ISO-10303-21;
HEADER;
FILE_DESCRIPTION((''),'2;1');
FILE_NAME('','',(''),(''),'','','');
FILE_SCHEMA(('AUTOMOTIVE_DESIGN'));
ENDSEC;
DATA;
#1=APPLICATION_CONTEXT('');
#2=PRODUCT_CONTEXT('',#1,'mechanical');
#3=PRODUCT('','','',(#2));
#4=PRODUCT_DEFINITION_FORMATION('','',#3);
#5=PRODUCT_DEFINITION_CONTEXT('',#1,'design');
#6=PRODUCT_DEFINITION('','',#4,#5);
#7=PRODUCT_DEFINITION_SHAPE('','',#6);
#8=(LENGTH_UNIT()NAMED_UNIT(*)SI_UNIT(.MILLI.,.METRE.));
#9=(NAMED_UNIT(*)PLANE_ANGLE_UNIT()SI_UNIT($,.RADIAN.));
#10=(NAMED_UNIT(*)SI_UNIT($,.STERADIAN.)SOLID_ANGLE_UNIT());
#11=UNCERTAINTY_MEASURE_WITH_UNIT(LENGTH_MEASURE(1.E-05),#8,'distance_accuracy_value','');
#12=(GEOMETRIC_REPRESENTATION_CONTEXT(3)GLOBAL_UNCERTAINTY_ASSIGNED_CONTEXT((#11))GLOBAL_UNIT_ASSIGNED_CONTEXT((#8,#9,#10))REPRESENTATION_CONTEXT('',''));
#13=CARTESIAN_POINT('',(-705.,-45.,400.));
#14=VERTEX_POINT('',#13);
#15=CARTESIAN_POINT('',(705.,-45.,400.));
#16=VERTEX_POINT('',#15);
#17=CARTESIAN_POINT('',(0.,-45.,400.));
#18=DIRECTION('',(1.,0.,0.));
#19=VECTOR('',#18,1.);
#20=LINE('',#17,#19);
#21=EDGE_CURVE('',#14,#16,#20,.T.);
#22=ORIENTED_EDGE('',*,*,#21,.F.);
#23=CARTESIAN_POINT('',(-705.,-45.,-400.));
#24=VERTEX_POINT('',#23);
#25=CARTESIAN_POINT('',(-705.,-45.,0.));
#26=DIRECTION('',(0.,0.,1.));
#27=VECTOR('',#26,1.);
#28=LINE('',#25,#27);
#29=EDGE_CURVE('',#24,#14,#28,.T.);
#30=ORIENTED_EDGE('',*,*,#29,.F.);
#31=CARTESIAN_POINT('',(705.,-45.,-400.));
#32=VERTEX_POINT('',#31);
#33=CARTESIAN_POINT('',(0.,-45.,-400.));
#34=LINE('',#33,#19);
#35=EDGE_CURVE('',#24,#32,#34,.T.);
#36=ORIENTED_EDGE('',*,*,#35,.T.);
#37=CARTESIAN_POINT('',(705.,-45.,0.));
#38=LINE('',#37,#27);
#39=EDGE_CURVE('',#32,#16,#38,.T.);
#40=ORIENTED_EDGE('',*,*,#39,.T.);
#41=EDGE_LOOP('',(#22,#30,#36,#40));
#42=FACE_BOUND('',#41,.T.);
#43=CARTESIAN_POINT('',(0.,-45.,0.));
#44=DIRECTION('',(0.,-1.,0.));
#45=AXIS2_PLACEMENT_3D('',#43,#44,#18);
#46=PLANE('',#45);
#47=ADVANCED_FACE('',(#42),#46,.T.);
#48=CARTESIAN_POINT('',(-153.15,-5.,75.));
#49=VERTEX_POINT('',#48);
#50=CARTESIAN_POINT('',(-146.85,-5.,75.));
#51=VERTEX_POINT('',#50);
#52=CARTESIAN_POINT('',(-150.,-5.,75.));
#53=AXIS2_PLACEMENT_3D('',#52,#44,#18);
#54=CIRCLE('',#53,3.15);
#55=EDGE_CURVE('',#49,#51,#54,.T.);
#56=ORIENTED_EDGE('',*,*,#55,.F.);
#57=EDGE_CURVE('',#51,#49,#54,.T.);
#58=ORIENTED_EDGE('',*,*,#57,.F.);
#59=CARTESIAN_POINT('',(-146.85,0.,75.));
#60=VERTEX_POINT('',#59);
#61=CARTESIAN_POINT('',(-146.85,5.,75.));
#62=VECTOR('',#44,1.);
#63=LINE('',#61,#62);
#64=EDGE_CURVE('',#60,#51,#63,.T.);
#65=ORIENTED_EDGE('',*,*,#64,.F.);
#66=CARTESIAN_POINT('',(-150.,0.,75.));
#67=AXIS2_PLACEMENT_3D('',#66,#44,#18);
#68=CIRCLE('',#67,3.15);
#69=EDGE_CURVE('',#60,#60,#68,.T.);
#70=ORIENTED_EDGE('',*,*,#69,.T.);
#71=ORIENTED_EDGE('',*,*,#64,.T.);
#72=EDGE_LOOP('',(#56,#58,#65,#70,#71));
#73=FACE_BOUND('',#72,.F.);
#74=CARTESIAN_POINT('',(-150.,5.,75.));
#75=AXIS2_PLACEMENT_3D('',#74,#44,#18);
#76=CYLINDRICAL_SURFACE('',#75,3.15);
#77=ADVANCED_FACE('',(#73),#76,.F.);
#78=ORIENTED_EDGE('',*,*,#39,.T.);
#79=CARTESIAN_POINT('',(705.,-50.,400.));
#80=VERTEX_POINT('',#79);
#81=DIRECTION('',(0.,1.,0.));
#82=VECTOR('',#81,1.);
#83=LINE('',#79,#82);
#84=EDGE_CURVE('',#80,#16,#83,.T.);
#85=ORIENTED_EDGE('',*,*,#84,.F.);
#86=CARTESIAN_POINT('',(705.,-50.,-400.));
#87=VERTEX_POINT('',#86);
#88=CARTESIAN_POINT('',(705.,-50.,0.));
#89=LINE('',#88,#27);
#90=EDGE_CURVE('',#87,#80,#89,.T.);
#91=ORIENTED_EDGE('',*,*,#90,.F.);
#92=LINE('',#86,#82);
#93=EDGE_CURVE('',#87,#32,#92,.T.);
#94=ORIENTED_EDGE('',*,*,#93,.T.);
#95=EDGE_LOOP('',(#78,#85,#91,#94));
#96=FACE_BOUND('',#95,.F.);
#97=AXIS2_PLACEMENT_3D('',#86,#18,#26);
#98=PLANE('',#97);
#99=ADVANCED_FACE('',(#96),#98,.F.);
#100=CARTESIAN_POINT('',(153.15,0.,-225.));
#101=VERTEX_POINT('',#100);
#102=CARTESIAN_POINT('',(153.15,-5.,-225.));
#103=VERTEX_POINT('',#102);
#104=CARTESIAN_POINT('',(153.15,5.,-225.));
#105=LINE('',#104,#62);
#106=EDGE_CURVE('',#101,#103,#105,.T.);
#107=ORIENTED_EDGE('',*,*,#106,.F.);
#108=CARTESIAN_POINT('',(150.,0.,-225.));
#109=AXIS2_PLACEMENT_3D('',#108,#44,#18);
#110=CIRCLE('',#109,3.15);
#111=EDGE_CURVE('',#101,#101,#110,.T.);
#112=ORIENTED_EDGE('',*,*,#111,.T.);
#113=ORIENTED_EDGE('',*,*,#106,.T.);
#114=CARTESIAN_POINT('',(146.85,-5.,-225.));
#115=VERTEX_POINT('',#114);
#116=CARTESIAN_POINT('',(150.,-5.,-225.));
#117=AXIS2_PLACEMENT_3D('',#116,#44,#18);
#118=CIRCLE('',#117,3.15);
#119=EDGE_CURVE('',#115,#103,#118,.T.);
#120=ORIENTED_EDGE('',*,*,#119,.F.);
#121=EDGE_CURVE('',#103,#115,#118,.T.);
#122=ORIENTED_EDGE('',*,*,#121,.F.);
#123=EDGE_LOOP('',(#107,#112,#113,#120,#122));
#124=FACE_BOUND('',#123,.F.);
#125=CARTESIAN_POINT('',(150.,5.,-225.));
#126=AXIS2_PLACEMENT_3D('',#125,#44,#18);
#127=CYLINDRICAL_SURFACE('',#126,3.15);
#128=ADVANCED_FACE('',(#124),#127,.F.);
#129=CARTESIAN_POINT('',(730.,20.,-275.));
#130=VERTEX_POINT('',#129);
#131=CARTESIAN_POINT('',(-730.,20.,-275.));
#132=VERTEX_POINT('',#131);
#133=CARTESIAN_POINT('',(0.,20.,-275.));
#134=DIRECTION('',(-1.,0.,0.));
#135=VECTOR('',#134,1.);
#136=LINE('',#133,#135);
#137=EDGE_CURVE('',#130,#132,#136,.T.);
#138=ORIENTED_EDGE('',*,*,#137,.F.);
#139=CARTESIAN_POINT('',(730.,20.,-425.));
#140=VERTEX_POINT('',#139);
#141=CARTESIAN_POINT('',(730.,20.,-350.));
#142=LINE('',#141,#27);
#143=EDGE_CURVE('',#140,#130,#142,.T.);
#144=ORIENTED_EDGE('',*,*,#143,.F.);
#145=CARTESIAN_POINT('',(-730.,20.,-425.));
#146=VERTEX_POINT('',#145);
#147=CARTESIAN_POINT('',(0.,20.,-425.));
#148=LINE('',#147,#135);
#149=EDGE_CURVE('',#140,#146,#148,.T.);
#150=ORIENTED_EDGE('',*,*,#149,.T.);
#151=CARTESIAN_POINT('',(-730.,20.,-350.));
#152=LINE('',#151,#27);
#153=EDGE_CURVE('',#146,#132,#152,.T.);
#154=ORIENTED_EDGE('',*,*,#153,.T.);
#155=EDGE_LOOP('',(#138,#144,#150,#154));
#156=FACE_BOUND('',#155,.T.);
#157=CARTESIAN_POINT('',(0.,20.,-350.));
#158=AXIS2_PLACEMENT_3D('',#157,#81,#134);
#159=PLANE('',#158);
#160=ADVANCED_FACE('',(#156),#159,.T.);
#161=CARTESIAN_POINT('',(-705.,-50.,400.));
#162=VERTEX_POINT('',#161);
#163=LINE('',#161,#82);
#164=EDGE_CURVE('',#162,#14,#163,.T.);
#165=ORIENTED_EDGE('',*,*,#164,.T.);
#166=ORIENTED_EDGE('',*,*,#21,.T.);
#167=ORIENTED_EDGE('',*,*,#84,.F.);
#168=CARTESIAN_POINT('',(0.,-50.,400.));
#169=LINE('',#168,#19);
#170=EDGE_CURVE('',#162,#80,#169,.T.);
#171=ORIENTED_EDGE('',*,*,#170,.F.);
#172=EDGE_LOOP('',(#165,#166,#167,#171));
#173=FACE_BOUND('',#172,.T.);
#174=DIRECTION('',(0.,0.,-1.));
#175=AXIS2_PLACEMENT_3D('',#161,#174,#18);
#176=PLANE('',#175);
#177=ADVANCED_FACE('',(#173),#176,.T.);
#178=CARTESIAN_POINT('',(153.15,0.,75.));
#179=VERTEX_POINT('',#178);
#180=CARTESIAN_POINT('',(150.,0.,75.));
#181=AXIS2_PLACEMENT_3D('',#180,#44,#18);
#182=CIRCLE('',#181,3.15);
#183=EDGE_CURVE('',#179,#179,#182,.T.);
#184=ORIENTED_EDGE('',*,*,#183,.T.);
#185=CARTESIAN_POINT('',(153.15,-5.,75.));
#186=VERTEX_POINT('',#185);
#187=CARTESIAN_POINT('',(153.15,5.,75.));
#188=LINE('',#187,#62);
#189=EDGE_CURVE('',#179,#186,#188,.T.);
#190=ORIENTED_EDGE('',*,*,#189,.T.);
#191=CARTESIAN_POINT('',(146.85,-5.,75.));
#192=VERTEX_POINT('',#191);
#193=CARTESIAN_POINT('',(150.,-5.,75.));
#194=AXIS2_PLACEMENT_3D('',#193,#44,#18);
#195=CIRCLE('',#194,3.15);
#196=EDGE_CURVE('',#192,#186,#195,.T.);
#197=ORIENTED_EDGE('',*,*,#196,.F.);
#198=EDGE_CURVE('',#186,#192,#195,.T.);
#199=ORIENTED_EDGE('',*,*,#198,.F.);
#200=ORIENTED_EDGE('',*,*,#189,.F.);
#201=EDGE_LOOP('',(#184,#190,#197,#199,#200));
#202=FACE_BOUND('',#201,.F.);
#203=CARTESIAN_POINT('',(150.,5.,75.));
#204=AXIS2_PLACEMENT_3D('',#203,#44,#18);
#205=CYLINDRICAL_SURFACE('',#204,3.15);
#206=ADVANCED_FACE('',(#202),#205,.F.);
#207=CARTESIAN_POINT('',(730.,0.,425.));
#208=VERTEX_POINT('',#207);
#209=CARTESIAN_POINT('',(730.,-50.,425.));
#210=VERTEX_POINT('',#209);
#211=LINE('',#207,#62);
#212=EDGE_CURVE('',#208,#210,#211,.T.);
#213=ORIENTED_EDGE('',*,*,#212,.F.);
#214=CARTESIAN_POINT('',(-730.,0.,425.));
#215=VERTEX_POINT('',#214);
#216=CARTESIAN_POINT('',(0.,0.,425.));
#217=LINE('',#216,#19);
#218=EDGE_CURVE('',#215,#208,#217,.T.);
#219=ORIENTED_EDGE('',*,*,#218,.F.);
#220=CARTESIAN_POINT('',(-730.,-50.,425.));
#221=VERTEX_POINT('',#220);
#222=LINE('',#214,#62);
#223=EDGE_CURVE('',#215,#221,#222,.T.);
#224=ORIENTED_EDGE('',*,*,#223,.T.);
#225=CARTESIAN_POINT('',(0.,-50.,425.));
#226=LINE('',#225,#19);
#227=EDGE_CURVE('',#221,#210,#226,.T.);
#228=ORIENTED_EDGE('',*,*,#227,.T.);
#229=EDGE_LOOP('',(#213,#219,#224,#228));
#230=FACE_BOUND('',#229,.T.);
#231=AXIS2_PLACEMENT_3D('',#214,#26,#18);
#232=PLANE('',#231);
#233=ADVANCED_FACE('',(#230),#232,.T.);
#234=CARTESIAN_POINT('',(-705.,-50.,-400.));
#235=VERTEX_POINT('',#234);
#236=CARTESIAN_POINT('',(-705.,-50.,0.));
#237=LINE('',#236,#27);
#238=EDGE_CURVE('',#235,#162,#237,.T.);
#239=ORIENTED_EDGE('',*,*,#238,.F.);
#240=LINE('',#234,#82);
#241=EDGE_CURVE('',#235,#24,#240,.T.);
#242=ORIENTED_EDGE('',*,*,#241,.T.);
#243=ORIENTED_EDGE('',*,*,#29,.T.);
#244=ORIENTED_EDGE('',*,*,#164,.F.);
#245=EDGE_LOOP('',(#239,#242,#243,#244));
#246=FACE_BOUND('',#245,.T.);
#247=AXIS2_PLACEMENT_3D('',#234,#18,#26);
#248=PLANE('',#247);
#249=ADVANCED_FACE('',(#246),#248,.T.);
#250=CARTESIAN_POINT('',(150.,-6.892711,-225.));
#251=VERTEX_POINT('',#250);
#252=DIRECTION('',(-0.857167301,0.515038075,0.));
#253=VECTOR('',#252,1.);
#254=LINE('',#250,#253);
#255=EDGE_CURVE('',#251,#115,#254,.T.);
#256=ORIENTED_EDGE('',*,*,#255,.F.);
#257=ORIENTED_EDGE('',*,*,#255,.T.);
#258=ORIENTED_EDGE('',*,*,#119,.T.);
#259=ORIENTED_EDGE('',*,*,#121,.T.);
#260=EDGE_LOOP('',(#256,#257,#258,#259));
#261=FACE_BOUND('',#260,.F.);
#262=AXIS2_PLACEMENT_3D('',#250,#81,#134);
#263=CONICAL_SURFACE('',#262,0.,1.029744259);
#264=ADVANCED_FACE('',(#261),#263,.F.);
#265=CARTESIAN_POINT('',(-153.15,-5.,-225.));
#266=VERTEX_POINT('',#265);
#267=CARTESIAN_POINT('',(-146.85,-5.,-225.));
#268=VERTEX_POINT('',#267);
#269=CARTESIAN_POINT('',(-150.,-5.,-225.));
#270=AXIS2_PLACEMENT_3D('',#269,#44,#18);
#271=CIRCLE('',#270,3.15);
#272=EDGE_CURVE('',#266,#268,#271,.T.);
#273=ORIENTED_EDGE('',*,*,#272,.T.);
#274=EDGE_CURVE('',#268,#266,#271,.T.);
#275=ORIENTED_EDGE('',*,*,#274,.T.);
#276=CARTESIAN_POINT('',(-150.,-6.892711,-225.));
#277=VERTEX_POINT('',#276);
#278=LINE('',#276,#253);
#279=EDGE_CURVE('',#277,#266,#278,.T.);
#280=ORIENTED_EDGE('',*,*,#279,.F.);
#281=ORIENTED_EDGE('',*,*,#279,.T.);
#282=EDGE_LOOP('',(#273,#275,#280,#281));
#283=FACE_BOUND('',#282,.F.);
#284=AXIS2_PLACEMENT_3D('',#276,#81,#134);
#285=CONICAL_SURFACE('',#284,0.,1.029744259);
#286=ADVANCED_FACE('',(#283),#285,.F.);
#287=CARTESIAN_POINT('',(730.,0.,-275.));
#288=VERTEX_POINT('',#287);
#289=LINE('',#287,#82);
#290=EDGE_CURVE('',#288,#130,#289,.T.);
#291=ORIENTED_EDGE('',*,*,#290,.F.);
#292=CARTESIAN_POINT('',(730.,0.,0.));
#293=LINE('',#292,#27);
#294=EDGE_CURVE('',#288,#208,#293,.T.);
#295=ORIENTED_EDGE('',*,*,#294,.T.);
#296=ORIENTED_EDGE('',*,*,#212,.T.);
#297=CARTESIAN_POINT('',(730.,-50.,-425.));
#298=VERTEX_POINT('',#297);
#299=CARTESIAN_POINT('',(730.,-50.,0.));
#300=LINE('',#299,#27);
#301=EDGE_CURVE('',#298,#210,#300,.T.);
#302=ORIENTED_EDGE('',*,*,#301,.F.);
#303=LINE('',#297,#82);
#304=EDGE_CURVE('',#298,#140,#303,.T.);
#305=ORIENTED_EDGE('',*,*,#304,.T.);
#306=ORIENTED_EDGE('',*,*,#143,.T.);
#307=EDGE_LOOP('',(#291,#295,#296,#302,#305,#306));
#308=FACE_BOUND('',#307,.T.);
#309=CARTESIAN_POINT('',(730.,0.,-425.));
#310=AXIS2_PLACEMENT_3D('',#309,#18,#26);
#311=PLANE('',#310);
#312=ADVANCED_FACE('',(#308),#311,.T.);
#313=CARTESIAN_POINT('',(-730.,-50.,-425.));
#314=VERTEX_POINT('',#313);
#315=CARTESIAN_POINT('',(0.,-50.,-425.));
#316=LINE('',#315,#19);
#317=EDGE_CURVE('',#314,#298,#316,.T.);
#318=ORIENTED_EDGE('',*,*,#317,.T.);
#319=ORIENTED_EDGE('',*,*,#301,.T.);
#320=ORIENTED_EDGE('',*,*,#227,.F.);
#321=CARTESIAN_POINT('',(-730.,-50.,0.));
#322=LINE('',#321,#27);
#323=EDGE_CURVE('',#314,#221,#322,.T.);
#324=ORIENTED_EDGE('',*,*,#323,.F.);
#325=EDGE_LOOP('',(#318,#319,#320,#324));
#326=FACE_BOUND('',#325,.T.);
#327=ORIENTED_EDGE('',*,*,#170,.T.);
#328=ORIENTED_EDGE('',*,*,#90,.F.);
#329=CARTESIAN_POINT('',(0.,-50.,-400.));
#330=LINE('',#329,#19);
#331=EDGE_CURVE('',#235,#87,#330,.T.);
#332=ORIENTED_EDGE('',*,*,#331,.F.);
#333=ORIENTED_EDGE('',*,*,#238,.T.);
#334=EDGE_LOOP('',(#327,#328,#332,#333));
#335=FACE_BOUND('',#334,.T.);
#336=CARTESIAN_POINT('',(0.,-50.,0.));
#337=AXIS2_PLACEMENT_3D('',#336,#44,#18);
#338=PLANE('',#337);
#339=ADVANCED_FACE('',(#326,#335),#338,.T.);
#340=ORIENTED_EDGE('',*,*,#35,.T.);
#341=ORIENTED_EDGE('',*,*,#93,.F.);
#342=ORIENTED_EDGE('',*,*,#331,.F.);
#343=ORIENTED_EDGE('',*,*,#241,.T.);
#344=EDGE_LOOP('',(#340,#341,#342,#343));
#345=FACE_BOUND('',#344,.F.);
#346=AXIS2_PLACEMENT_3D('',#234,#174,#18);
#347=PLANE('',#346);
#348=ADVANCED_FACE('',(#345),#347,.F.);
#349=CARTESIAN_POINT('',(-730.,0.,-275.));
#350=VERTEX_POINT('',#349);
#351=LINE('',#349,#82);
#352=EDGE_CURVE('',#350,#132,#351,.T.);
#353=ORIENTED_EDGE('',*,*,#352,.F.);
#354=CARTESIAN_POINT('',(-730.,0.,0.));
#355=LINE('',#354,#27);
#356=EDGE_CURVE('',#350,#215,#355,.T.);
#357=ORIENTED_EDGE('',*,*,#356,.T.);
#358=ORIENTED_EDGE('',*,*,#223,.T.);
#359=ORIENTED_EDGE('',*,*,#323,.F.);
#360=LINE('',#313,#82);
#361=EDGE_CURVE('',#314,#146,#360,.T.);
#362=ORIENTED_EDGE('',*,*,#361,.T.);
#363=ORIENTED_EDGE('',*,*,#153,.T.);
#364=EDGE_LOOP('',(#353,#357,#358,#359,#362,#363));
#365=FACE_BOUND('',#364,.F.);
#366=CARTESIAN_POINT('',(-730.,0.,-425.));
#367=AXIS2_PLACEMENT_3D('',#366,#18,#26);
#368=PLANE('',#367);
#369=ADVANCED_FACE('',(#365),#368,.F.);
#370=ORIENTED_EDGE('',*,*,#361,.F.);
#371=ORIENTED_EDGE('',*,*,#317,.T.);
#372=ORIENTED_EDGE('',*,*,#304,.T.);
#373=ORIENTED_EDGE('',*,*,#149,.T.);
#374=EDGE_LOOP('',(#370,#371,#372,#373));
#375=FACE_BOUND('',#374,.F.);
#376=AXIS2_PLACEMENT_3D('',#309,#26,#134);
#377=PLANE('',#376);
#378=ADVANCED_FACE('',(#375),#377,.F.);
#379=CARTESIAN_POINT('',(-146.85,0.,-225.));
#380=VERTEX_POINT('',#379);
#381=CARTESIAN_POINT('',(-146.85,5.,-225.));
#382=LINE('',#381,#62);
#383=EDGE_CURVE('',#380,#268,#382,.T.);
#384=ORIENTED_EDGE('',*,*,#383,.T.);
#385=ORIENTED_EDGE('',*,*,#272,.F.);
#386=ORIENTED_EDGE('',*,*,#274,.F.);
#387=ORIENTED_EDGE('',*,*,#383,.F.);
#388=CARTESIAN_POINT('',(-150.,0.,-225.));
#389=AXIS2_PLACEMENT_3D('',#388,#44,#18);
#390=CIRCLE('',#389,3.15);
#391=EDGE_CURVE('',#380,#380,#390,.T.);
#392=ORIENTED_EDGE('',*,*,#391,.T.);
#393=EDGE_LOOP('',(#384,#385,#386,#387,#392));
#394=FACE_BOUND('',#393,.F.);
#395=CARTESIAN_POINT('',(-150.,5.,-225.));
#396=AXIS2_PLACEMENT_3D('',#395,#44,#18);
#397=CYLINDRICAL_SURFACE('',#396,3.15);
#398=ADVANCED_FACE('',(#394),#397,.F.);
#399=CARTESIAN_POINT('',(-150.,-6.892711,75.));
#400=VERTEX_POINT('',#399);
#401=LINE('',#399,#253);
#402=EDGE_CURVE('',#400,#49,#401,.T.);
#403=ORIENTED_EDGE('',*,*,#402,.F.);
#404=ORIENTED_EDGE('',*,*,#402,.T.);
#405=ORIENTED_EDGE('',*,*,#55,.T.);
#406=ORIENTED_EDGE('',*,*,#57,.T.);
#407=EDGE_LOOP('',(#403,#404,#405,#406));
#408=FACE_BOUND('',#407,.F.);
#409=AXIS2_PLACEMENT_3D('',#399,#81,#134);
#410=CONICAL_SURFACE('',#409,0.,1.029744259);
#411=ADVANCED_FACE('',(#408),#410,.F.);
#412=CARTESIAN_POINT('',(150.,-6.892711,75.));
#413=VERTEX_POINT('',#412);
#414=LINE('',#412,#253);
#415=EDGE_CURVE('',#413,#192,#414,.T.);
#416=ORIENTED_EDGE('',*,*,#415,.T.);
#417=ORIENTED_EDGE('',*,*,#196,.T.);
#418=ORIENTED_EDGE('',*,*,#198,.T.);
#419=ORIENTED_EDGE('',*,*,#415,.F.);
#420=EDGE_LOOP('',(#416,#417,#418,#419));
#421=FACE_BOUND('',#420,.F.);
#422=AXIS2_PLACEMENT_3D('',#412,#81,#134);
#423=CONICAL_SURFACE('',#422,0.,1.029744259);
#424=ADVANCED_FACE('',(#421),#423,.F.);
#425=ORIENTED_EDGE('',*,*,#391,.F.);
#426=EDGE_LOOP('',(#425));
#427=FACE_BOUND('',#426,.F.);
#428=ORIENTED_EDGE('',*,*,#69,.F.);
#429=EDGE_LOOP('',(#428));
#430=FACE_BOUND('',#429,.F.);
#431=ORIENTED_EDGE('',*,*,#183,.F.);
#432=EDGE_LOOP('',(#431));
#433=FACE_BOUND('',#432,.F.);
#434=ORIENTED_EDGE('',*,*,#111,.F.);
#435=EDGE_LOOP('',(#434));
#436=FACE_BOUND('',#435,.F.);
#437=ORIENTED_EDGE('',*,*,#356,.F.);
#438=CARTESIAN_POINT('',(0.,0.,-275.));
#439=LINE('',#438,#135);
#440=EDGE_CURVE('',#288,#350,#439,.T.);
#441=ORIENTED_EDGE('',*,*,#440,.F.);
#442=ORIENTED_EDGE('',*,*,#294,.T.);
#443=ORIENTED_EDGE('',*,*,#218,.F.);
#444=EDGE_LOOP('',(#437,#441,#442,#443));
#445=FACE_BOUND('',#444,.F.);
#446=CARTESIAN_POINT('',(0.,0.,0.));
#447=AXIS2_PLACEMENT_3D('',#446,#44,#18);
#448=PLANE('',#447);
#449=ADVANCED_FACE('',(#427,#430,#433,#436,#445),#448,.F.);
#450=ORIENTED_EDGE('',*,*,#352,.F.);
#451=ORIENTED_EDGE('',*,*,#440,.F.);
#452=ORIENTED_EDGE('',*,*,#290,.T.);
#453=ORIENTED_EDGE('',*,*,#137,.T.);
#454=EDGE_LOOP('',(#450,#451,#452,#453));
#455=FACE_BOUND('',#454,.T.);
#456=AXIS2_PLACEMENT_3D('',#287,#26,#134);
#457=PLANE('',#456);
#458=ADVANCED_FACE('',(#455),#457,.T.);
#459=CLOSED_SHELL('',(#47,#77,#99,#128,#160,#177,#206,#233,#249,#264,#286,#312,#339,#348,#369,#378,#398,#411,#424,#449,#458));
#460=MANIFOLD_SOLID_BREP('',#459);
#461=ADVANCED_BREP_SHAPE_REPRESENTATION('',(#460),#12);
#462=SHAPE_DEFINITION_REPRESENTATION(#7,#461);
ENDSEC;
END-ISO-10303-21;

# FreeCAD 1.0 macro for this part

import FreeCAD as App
import Part
import Sketcher
from FreeCAD import Vector
Q = App.Units.Quantity


def add_polygon(sketch, points):
    """Adds a closed chain of lines whose ends are joined by coincident constraints."""
    first, n = sketch.GeometryCount, len(points)
    for a, b in zip(points, points[1:] + points[:1]):
        sketch.addGeometry(Part.LineSegment(App.Vector(*a, 0), App.Vector(*b, 0)), False)
    for i in range(n):
        sketch.addConstraint(Sketcher.Constraint("Coincident", first + i, 2, first + (i + 1) % n, 1))

doc = App.newDocument("Part")
body = doc.addObject("PartDesign::Body", "Body")

# Sketch on XZ plane
sketch1 = doc.addObject("Sketcher::SketchObject", "Sketch")
body.addObject(sketch1)
sketch1.AttachmentSupport = (doc.XZ_Plane, [""])
sketch1.MapMode = "FlatFace"
add_polygon(sketch1, [(-730, 425), (-730, -425), (730, -425), (730, 425)])  # lines 0-3
sketch1.addConstraint(Sketcher.Constraint("Vertical", 0))
sketch1.addConstraint(Sketcher.Constraint("Horizontal", 1))
sketch1.addConstraint(Sketcher.Constraint("Vertical", 2))
sketch1.addConstraint(Sketcher.Constraint("Horizontal", 3))
sketch1.addConstraint(Sketcher.Constraint("Symmetric", 0, 2, 2, 2, -1, 1))
sketch1.addConstraint(Sketcher.Constraint("DistanceX", 1, 1, 1, 2, Q("1460 mm")))
sketch1.addConstraint(Sketcher.Constraint("DistanceY", 0, 2, 0, 1, Q("850 mm")))
pad1 = doc.addObject("PartDesign::Pad", "Pad")
body.addObject(pad1)
pad1.Profile = sketch1
pad1.Length = 50

# Sketch on XZ plane
sketch2 = doc.addObject("Sketcher::SketchObject", "Sketch001")
body.addObject(sketch2)
sketch2.AttachmentSupport = (doc.XZ_Plane, [""])
sketch2.MapMode = "FlatFace"
sketch2.AttachmentOffset = App.Placement(Vector(0, 0, 50), App.Rotation())
add_polygon(sketch2, [(-705, 400), (-705, -400), (705, -400), (705, 400)])  # lines 0-3
sketch2.addConstraint(Sketcher.Constraint("Vertical", 0))
sketch2.addConstraint(Sketcher.Constraint("Horizontal", 1))
sketch2.addConstraint(Sketcher.Constraint("Vertical", 2))
sketch2.addConstraint(Sketcher.Constraint("Horizontal", 3))
sketch2.addConstraint(Sketcher.Constraint("Symmetric", 0, 2, 2, 2, -1, 1))
sketch2.addConstraint(Sketcher.Constraint("DistanceX", 1, 1, 1, 2, Q("1410 mm")))
sketch2.addConstraint(Sketcher.Constraint("DistanceY", 0, 2, 0, 1, Q("800 mm")))
pocket1 = doc.addObject("PartDesign::Pocket", "Pocket")
body.addObject(pocket1)
pocket1.Profile = sketch2
pocket1.Length = 5

# Sketch on XZ plane
sketch3 = doc.addObject("Sketcher::SketchObject", "Sketch002")
body.addObject(sketch3)
sketch3.AttachmentSupport = (doc.XZ_Plane, [""])
sketch3.MapMode = "FlatFace"
sketch3.addGeometry(Part.Circle(Vector(150, 75, 0), Vector(0, 0, 1), 3.1), False)
sketch3.addGeometry(Part.Circle(Vector(-150, 75, 0), Vector(0, 0, 1), 3.1), False)
sketch3.addGeometry(Part.Circle(Vector(-150, -225, 0), Vector(0, 0, 1), 3.1), False)
sketch3.addGeometry(Part.Circle(Vector(150, -225, 0), Vector(0, 0, 1), 3.1), False)
sketch3.addConstraint(Sketcher.Constraint("Equal", 0, 1))
sketch3.addConstraint(Sketcher.Constraint("Equal", 1, 2))
sketch3.addConstraint(Sketcher.Constraint("Equal", 2, 3))
sketch3.addConstraint(Sketcher.Constraint("Symmetric", 0, 3, 1, 3, -2))
sketch3.addConstraint(Sketcher.Constraint("Symmetric", 2, 3, 3, 3, -2))
sketch3.addConstraint(Sketcher.Constraint("Vertical", 1, 3, 2, 3))
sketch3.addConstraint(Sketcher.Constraint("Diameter", 0, Q("6.3 mm")))
sketch3.addConstraint(Sketcher.Constraint("DistanceX", -1, 1, 0, 3, Q("150 mm")))
sketch3.addConstraint(Sketcher.Constraint("DistanceY", -1, 1, 0, 3, Q("75 mm")))
sketch3.addConstraint(Sketcher.Constraint("DistanceY", 2, 3, -1, 1, Q("225 mm")))
doc.recompute()
hole = doc.addObject("PartDesign::Hole", "Hole")
body.addObject(hole)
hole.Profile = sketch3
hole.ThreadType = "None"
hole.Diameter = 6.3
hole.DepthType = "Dimension"
hole.Depth = 5
hole.DrillPoint = "Angled"
hole.DrillPointAngle = 118
hole.Reversed = True

# Sketch on XZ plane
sketch4 = doc.addObject("Sketcher::SketchObject", "Sketch003")
body.addObject(sketch4)
sketch4.AttachmentSupport = (doc.XZ_Plane, [""])
sketch4.MapMode = "FlatFace"
add_polygon(sketch4, [(730, -275), (730, -425), (-730, -425), (-730, -275)])  # lines 0-3
sketch4.addConstraint(Sketcher.Constraint("Vertical", 0))
sketch4.addConstraint(Sketcher.Constraint("Horizontal", 1))
sketch4.addConstraint(Sketcher.Constraint("Vertical", 2))
sketch4.addConstraint(Sketcher.Constraint("Horizontal", 3))
sketch4.addConstraint(Sketcher.Constraint("DistanceX", 1, 2, 1, 1, Q("1460 mm")))
sketch4.addConstraint(Sketcher.Constraint("DistanceY", 0, 2, 0, 1, Q("150 mm")))
sketch4.addConstraint(Sketcher.Constraint("DistanceX", -1, 1, 0, 2, Q("730 mm")))
sketch4.addConstraint(Sketcher.Constraint("DistanceY", 0, 2, -1, 1, Q("425 mm")))
pad2 = doc.addObject("PartDesign::Pad", "Pad001")
body.addObject(pad2)
pad2.Profile = sketch4
pad2.Length = 20
pad2.Reversed = True

doc.recompute()
